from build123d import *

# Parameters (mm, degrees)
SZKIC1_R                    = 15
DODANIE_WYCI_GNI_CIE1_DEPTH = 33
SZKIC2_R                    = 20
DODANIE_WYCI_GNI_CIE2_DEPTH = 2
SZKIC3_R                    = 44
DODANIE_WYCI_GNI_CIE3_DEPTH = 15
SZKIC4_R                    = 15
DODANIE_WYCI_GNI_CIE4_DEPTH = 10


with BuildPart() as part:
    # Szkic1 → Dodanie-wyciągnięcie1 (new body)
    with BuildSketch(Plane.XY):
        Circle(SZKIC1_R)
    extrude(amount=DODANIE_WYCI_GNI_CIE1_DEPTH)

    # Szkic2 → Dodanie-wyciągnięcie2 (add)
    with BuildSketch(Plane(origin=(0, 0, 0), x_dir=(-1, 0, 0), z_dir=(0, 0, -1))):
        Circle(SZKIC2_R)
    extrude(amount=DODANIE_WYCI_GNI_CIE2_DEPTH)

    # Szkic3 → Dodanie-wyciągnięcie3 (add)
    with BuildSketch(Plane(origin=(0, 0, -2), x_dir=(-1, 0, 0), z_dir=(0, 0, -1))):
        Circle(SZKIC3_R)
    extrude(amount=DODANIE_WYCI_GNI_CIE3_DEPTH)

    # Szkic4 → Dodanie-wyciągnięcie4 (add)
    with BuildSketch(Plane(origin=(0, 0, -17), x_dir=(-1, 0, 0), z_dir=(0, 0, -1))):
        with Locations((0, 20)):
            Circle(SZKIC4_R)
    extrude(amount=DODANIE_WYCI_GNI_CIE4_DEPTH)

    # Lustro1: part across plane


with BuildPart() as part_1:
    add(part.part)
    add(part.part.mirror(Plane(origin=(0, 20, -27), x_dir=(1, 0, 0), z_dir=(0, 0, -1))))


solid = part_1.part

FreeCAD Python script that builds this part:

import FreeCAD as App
import Part
import Sketcher
from FreeCAD import Vector
Q = App.Units.Quantity

doc = App.newDocument("Part")
body = doc.addObject("PartDesign::Body", "Body")

sketch1 = doc.addObject("Sketcher::SketchObject", "Sketch")
body.addObject(sketch1)
sketch1.AttachmentSupport = (doc.XY_Plane, [""])
sketch1.MapMode = "FlatFace"
sketch1.addGeometry(Part.Circle(Vector(0, 0, 0), Vector(0, 0, 1), 15), False)
sketch1.addConstraint([
    Sketcher.Constraint("Coincident", 0, 3, -1, 1),
    Sketcher.Constraint("Diameter", 0, Q("30 mm")),
])
pad1 = doc.addObject("PartDesign::Pad", "Pad")
body.addObject(pad1)
pad1.Profile = sketch1
pad1.Length = 33

sketch2 = doc.addObject("Sketcher::SketchObject", "Sketch001")
body.addObject(sketch2)
sketch2.AttachmentSupport = (doc.XY_Plane, [""])
sketch2.MapMode = "FlatFace"
sketch2.addGeometry(Part.Circle(Vector(0, 0, 0), Vector(0, 0, 1), 20), False)
sketch2.addConstraint([
    Sketcher.Constraint("Coincident", 0, 3, -1, 1),
    Sketcher.Constraint("Diameter", 0, Q("40 mm")),
])
pad2 = doc.addObject("PartDesign::Pad", "Pad001")
body.addObject(pad2)
pad2.Profile = sketch2
pad2.Length = 2
pad2.Reversed = True

sketch3 = doc.addObject("Sketcher::SketchObject", "Sketch002")
body.addObject(sketch3)
sketch3.AttachmentSupport = (doc.XY_Plane, [""])
sketch3.MapMode = "FlatFace"
sketch3.AttachmentOffset = App.Placement(Vector(0, 0, -2), App.Rotation())
sketch3.addGeometry(Part.Circle(Vector(0, 0, 0), Vector(0, 0, 1), 44), False)
sketch3.addConstraint([
    Sketcher.Constraint("Coincident", 0, 3, -1, 1),
    Sketcher.Constraint("Diameter", 0, Q("88 mm")),
])
pad3 = doc.addObject("PartDesign::Pad", "Pad002")
body.addObject(pad3)
pad3.Profile = sketch3
pad3.Length = 15
pad3.Reversed = True

sketch4 = doc.addObject("Sketcher::SketchObject", "Sketch003")
body.addObject(sketch4)
sketch4.AttachmentSupport = (doc.XY_Plane, [""])
sketch4.MapMode = "FlatFace"
sketch4.AttachmentOffset = App.Placement(Vector(0, 0, -17), App.Rotation())
sketch4.addGeometry(Part.Circle(Vector(0, 20, 0), Vector(0, 0, 1), 15), False)
sketch4.addConstraint([
    Sketcher.Constraint("PointOnObject", 0, 3, -2),
    Sketcher.Constraint("Diameter", 0, Q("30 mm")),
    Sketcher.Constraint("DistanceY", -1, 1, 0, 3, Q("20 mm")),
])
pad4 = doc.addObject("PartDesign::Pad", "Pad003")
body.addObject(pad4)
pad4.Profile = sketch4
pad4.Length = 10
pad4.Reversed = True
body2 = doc.addObject("PartDesign::Body", "Body001")
doc.recompute()

body2.BaseFeature = body
doc.recompute()

mirroring = doc.addObject("Part::Mirroring", "Mirroring")
mirroring.Source = body
mirroring.Base = Vector(0, 20, -27)
mirroring.Normal = Vector(0, 0, -1)
body3 = doc.addObject("PartDesign::Body", "Body002")
body3.BaseFeature = mirroring
boolean = doc.addObject("PartDesign::Boolean", "Boolean")
body2.addObject(boolean)
boolean.Type = "Fuse"
boolean.addObjects([body3])
doc.recompute()
mirroring.Visibility = False

doc.recompute()
